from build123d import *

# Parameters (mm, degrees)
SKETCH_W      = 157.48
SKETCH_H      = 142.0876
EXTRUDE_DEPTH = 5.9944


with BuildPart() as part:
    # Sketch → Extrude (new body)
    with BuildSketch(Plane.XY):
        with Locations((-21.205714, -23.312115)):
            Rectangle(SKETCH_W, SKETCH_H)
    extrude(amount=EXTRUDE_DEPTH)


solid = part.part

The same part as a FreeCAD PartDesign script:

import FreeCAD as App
import Part
import Sketcher
from FreeCAD import Vector
Q = App.Units.Quantity

doc = App.newDocument("Part")
body = doc.addObject("PartDesign::Body", "Body")

# Sketch on XY plane
sketch1 = body.newObject("Sketcher::SketchObject", "Sketch")
sketch1.AttachmentSupport = (doc.getObject("XY_Plane"), [""])
sketch1.MapMode = "FlatFace"
sketch1.addGeometry([
    Part.LineSegment(Vector(-99.945714, 47.731685, 0), Vector(-99.945714, -94.355915, 0)),
    Part.LineSegment(Vector(-99.945714, -94.355915, 0), Vector(57.534286, -94.355915, 0)),
    Part.LineSegment(Vector(57.534286, -94.355915, 0), Vector(57.534286, 47.731685, 0)),
    Part.LineSegment(Vector(57.534286, 47.731685, 0), Vector(-99.945714, 47.731685, 0)),
], False)
sketch1.addConstraint([
    Sketcher.Constraint("Coincident", 0, 2, 1, 1),
    Sketcher.Constraint("Coincident", 1, 2, 2, 1),
    Sketcher.Constraint("Coincident", 2, 2, 3, 1),
    Sketcher.Constraint("Coincident", 3, 2, 0, 1),
    Sketcher.Constraint("Vertical", 0),
    Sketcher.Constraint("Horizontal", 1),
    Sketcher.Constraint("Vertical", 2),
    Sketcher.Constraint("Horizontal", 3),
    Sketcher.Constraint("DistanceX", 1, 1, 1, 2, Q("6.2 in")),
    Sketcher.Constraint("DistanceY", 0, 2, 0, 1, Q("5.594 in")),
    Sketcher.Constraint("DistanceY", 0, 2, -1, 1, Q("3.7147998 in")),
    Sketcher.Constraint("DistanceX", 0, 2, -1, 1, Q("99.945714 mm")),
])
pad1 = body.newObject("PartDesign::Pad", "Pad")
pad1.Profile = sketch1
pad1.Length = Q("0.236 in")

doc.recompute()
